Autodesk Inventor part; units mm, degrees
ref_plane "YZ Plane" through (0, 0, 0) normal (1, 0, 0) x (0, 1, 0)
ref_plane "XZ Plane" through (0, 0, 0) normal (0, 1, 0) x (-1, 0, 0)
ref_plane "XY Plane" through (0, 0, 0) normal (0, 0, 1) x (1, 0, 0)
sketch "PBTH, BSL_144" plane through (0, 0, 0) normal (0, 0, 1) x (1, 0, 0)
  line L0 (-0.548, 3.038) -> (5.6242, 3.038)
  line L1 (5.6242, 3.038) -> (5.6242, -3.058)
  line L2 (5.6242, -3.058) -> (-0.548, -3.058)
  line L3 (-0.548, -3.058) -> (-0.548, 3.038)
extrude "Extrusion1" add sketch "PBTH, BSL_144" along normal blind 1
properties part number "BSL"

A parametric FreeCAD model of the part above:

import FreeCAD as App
import Part
import Sketcher
from FreeCAD import Vector
Q = App.Units.Quantity

doc = App.newDocument("Part")
body = doc.addObject("PartDesign::Body", "Body")

# Sketch on XY plane
sketch1 = doc.addObject("Sketcher::SketchObject", "Sketch")
body.addObject(sketch1)
sketch1.AttachmentSupport = (doc.XY_Plane, [""])
sketch1.MapMode = "FlatFace"
sketch1.addGeometry([
    Part.LineSegment(Vector(5.6242, 3.038, 0), Vector(-0.548, 3.038, 0)),
    Part.LineSegment(Vector(-0.548, 3.038, 0), Vector(-0.548, -3.058, 0)),
    Part.LineSegment(Vector(-0.548, -3.058, 0), Vector(5.6242, -3.058, 0)),
    Part.LineSegment(Vector(5.6242, -3.058, 0), Vector(5.6242, 3.038, 0)),
], False)
sketch1.addConstraint([
    Sketcher.Constraint("Coincident", 0, 2, 1, 1),
    Sketcher.Constraint("Coincident", 1, 2, 2, 1),
    Sketcher.Constraint("Coincident", 2, 2, 3, 1),
    Sketcher.Constraint("Coincident", 3, 2, 0, 1),
    Sketcher.Constraint("Horizontal", 0),
    Sketcher.Constraint("Vertical", 1),
    Sketcher.Constraint("Horizontal", 2),
    Sketcher.Constraint("Vertical", 3),
    Sketcher.Constraint("DistanceY", 1, 2, 1, 1, Q("0.24 in")),
    Sketcher.Constraint("DistanceX", 0, 2, 0, 1, Q("0.243 in")),
    Sketcher.Constraint("DistanceY", -1, 1, 0, 2, Q("0.1196 in")),
    Sketcher.Constraint("DistanceX", 0, 2, -1, 1, 0.548),
])
pad1 = doc.addObject("PartDesign::Pad", "Pad")
body.addObject(pad1)
pad1.Profile = sketch1
pad1.Length = 1

doc.recompute()
